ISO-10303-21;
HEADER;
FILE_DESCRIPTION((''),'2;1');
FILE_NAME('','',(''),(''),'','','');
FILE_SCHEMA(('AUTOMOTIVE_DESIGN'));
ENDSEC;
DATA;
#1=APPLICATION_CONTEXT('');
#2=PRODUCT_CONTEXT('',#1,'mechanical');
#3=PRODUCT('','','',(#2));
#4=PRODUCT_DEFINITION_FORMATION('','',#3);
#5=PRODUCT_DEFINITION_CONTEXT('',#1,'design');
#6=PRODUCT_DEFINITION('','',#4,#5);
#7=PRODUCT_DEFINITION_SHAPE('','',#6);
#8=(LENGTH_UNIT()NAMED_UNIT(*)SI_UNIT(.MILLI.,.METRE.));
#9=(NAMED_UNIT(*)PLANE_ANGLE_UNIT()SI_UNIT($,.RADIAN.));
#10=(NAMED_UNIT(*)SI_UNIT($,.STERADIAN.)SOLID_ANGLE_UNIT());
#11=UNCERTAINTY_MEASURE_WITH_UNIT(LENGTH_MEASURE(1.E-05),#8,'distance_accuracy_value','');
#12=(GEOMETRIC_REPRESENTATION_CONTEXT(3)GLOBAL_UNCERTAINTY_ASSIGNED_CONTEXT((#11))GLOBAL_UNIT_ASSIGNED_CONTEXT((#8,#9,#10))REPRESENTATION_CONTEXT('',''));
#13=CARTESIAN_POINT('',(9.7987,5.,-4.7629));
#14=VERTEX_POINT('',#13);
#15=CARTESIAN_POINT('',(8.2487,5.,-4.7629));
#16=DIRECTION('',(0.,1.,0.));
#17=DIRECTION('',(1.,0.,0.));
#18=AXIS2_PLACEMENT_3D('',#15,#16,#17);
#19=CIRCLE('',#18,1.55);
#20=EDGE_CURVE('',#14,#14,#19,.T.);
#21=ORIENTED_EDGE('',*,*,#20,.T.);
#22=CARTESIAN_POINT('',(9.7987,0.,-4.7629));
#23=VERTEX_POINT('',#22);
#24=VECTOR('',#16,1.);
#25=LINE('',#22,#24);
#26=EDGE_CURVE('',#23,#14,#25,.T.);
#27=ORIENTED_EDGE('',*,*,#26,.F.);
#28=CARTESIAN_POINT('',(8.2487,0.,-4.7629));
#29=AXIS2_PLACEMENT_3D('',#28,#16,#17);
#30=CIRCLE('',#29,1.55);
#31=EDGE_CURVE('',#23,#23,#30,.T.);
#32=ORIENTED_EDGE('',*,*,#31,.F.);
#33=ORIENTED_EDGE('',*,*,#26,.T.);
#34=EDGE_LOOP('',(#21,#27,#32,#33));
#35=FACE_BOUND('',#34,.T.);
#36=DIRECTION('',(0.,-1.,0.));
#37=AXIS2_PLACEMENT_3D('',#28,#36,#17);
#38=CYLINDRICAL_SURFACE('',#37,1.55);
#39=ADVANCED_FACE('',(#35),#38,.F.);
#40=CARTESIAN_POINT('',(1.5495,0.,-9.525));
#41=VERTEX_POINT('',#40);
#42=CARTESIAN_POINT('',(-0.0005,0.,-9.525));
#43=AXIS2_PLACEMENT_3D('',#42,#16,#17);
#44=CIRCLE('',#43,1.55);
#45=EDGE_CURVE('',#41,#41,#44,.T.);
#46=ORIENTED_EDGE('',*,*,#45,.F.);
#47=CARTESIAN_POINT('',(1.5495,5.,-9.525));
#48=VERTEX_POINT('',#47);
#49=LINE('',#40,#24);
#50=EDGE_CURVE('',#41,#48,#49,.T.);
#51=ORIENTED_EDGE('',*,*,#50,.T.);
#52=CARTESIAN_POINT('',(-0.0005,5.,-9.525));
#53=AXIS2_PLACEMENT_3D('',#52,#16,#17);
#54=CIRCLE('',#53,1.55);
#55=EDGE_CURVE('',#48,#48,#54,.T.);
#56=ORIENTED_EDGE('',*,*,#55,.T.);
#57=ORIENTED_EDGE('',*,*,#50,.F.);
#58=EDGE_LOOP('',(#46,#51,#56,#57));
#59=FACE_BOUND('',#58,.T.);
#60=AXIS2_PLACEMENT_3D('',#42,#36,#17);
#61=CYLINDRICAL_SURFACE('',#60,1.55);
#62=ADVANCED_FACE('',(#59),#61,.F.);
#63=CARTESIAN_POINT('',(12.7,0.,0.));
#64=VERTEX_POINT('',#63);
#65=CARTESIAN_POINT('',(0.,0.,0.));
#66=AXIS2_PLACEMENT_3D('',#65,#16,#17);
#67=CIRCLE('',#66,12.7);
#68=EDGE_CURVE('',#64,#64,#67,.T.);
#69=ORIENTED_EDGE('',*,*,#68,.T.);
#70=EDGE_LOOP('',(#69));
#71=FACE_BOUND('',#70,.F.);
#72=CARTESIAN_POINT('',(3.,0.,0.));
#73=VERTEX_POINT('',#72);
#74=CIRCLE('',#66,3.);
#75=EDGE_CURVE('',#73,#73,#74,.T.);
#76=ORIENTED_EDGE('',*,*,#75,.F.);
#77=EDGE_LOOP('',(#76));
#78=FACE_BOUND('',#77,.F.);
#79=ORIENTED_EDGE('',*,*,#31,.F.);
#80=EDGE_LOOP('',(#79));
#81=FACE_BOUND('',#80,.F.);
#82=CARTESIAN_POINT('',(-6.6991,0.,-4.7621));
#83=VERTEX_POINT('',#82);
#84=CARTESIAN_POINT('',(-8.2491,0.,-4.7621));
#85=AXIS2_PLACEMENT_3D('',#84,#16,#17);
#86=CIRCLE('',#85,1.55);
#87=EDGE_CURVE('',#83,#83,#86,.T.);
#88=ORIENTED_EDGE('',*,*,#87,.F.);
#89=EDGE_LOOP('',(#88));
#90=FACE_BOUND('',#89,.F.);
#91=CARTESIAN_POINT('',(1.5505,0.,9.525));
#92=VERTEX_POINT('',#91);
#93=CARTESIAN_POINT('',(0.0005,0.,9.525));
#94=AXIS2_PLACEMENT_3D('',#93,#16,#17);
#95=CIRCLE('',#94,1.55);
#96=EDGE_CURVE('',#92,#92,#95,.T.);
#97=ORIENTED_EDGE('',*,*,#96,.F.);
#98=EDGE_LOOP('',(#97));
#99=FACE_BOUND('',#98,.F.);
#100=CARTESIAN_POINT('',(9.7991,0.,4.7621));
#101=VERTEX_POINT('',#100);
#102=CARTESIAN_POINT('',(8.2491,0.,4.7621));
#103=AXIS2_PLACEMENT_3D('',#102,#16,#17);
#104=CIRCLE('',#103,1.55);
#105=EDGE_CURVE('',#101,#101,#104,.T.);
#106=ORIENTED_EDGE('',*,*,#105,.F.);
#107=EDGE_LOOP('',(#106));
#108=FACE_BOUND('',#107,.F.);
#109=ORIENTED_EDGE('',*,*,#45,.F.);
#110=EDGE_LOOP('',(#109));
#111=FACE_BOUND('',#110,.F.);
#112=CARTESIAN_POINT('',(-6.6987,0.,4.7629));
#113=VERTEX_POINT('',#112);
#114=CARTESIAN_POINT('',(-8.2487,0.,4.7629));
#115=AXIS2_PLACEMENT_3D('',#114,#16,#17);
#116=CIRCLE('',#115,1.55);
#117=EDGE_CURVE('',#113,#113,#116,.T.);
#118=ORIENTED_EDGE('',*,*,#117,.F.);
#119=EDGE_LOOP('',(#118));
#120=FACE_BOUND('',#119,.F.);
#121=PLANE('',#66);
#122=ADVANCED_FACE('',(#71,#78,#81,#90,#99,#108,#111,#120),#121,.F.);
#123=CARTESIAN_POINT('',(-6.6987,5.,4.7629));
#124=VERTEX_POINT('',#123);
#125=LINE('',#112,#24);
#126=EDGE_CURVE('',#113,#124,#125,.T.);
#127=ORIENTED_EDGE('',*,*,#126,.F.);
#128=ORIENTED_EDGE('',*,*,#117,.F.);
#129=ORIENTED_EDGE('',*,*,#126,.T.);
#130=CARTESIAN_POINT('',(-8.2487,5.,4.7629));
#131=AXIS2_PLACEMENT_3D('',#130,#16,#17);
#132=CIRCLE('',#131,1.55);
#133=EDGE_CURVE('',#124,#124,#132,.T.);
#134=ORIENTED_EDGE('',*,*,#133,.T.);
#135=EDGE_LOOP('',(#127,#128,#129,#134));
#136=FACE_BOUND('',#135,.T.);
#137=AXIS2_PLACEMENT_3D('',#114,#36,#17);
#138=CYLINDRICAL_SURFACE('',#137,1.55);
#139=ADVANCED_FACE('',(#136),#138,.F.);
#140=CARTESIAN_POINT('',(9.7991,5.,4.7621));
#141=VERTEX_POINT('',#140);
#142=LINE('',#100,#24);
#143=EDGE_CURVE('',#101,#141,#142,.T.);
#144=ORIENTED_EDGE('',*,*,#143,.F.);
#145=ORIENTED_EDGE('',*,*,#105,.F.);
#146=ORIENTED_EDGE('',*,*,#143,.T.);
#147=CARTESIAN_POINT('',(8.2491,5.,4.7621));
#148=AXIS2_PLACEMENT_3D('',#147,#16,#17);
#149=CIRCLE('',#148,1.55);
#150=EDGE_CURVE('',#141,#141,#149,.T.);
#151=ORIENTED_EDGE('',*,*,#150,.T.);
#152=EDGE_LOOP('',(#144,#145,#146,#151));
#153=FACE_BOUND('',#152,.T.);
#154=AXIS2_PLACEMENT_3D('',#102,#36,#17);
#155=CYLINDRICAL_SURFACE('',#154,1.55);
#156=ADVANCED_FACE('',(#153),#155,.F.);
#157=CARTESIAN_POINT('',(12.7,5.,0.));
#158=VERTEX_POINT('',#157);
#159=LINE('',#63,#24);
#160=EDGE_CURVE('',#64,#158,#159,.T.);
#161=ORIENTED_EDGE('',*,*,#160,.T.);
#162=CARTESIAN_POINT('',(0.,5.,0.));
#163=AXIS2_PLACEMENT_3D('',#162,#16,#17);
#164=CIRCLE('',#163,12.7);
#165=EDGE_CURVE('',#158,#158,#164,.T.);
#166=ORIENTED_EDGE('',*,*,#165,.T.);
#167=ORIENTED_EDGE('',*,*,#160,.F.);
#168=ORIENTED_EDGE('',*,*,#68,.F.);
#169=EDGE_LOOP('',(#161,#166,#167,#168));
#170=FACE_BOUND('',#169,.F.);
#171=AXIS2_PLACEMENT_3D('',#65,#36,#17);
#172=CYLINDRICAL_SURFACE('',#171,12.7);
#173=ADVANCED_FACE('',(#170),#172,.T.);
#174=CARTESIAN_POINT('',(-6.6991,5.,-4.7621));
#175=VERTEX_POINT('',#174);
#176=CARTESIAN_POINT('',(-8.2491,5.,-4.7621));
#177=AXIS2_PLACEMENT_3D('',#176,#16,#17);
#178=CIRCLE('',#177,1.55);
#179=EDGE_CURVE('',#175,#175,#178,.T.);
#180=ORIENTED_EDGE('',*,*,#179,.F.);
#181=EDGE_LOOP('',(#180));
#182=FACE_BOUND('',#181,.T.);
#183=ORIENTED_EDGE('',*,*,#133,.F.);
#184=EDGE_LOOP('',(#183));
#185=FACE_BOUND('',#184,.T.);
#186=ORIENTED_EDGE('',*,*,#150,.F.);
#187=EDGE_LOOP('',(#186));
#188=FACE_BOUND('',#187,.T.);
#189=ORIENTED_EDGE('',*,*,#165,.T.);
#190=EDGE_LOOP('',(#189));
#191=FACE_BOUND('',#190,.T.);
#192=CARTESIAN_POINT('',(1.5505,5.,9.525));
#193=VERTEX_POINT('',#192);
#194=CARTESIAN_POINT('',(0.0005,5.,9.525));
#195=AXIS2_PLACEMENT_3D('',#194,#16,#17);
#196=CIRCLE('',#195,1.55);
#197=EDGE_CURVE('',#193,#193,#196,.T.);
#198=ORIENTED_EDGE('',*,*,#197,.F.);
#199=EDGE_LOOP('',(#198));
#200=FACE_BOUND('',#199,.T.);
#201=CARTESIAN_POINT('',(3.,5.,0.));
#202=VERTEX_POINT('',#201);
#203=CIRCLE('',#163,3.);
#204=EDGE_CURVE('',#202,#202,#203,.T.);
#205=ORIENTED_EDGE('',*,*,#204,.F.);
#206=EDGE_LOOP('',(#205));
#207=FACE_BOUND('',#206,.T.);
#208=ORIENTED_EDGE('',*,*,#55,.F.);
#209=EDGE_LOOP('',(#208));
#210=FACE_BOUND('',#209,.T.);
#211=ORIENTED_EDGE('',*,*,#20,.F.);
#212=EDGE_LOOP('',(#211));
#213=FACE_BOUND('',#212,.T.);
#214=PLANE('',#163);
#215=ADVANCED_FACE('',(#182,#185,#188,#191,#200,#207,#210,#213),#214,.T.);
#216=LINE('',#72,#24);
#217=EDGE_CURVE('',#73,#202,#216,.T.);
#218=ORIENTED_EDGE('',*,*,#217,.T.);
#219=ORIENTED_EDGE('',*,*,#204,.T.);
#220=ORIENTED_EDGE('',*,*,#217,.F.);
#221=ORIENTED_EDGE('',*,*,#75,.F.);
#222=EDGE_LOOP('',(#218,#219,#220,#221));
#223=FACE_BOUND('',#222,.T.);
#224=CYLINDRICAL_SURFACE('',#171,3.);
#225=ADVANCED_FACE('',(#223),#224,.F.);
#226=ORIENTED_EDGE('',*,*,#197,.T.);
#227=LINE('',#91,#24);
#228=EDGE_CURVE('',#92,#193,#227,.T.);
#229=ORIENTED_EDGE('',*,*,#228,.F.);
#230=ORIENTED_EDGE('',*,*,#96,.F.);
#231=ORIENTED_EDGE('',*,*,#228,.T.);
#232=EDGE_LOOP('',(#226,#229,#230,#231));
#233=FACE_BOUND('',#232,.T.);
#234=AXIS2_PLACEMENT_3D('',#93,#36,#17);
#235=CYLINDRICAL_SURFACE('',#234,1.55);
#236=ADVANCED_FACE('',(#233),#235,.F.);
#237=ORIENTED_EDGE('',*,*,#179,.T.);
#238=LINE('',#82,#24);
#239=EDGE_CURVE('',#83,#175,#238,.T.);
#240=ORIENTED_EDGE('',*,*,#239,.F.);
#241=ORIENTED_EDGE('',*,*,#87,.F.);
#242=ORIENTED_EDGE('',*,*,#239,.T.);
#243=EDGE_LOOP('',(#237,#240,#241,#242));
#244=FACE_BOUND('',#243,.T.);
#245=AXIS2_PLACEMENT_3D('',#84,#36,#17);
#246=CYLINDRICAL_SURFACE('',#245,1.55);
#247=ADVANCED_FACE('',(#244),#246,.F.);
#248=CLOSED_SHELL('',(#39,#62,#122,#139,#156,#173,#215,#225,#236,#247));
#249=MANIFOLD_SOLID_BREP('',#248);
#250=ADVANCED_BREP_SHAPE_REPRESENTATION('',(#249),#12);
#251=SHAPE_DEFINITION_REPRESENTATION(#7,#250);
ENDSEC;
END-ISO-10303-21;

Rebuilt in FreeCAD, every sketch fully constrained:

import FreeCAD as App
import Part
import Sketcher
from FreeCAD import Vector
Q = App.Units.Quantity

doc = App.newDocument("Part")
params = doc.addObject("Spreadsheet::Sheet", "Params")
for row, (alias, value) in enumerate([
    ("sketch1_diameter", "6 mm"),
    ("sketch1_diameter2", "25.4 mm"),
    ("sketch1_diameter3", "3.1 mm"),
    ("pad1_length", "5 mm"),
], start=1):
    params.set(f"A{row}", alias)
    params.set(f"B{row}", "=" + value)
    params.setAlias(f"B{row}", alias)

body = doc.addObject("PartDesign::Body", "Body")

sketch1 = body.newObject("Sketcher::SketchObject", "Sketch")
sketch1.AttachmentSupport = (doc.getObject("XZ_Plane"), [""])
sketch1.MapMode = "FlatFace"
sketch1.addGeometry([
    Part.Circle(Vector(0, 0, 0), Vector(0, 0, 1), 12.7),
    Part.Circle(Vector(-8.2487, 4.7629, 0), Vector(0, 0, 1), 1.55),
    Part.Circle(Vector(0, 0, 0), Vector(0, 0, 1), 3),
    Part.Circle(Vector(0.0005, 9.525, 0), Vector(0, 0, 1), 1.55),
    Part.Circle(Vector(8.2491, 4.7621, 0), Vector(0, 0, 1), 1.55),
    Part.Circle(Vector(-8.2491, -4.7621, 0), Vector(0, 0, 1), 1.55),
    Part.Circle(Vector(-0.0005, -9.525, 0), Vector(0, 0, 1), 1.55),
    Part.Circle(Vector(8.2487, -4.7629, 0), Vector(0, 0, 1), 1.55),
], False)
sketch1.addConstraint([
    Sketcher.Constraint("Coincident", 0, 3, -1, 1),
    Sketcher.Constraint("Coincident", 2, 3, -1, 1),
    Sketcher.Constraint("Equal", 1, 3),
    Sketcher.Constraint("Equal", 3, 4),
    Sketcher.Constraint("Equal", 4, 5),
    Sketcher.Constraint("Equal", 5, 6),
    Sketcher.Constraint("Equal", 6, 7),
    Sketcher.Constraint("Symmetric", 4, 3, 5, 3, -1, 1),
    Sketcher.Constraint("Symmetric", 3, 3, 6, 3, -1, 1),
    Sketcher.Constraint("Symmetric", 1, 3, 7, 3, -1, 1),
    Sketcher.Constraint("Diameter", 2, Q("6 mm")),
    Sketcher.Constraint("Diameter", 0, Q("25.4 mm")),
    Sketcher.Constraint("Diameter", 1, Q("3.1 mm")),
    Sketcher.Constraint("DistanceY", -1, 1, 1, 3, Q("4.763 mm")),
    Sketcher.Constraint("DistanceY", -1, 1, 3, 3, Q("9.525 mm")),
    Sketcher.Constraint("DistanceX", -1, 1, 4, 3, Q("8.249 mm")),
    Sketcher.Constraint("DistanceY", -1, 1, 4, 3, Q("4.762 mm")),
    Sketcher.Constraint("DistanceX", 1, 3, -1, 1, Q("8.2487 mm")),
    Sketcher.Constraint("DistanceX", -1, 1, 3, 3, Q("0.0005 mm")),
])
sketch1.setExpression("Constraints[10]", "Params.sketch1_diameter")
sketch1.setExpression("Constraints[11]", "Params.sketch1_diameter2")
sketch1.setExpression("Constraints[12]", "Params.sketch1_diameter3")
pad1 = body.newObject("PartDesign::Pad", "Pad")
pad1.Profile = sketch1
pad1.setExpression("Length", "Params.pad1_length")
pad1.Reversed = True

doc.recompute()
